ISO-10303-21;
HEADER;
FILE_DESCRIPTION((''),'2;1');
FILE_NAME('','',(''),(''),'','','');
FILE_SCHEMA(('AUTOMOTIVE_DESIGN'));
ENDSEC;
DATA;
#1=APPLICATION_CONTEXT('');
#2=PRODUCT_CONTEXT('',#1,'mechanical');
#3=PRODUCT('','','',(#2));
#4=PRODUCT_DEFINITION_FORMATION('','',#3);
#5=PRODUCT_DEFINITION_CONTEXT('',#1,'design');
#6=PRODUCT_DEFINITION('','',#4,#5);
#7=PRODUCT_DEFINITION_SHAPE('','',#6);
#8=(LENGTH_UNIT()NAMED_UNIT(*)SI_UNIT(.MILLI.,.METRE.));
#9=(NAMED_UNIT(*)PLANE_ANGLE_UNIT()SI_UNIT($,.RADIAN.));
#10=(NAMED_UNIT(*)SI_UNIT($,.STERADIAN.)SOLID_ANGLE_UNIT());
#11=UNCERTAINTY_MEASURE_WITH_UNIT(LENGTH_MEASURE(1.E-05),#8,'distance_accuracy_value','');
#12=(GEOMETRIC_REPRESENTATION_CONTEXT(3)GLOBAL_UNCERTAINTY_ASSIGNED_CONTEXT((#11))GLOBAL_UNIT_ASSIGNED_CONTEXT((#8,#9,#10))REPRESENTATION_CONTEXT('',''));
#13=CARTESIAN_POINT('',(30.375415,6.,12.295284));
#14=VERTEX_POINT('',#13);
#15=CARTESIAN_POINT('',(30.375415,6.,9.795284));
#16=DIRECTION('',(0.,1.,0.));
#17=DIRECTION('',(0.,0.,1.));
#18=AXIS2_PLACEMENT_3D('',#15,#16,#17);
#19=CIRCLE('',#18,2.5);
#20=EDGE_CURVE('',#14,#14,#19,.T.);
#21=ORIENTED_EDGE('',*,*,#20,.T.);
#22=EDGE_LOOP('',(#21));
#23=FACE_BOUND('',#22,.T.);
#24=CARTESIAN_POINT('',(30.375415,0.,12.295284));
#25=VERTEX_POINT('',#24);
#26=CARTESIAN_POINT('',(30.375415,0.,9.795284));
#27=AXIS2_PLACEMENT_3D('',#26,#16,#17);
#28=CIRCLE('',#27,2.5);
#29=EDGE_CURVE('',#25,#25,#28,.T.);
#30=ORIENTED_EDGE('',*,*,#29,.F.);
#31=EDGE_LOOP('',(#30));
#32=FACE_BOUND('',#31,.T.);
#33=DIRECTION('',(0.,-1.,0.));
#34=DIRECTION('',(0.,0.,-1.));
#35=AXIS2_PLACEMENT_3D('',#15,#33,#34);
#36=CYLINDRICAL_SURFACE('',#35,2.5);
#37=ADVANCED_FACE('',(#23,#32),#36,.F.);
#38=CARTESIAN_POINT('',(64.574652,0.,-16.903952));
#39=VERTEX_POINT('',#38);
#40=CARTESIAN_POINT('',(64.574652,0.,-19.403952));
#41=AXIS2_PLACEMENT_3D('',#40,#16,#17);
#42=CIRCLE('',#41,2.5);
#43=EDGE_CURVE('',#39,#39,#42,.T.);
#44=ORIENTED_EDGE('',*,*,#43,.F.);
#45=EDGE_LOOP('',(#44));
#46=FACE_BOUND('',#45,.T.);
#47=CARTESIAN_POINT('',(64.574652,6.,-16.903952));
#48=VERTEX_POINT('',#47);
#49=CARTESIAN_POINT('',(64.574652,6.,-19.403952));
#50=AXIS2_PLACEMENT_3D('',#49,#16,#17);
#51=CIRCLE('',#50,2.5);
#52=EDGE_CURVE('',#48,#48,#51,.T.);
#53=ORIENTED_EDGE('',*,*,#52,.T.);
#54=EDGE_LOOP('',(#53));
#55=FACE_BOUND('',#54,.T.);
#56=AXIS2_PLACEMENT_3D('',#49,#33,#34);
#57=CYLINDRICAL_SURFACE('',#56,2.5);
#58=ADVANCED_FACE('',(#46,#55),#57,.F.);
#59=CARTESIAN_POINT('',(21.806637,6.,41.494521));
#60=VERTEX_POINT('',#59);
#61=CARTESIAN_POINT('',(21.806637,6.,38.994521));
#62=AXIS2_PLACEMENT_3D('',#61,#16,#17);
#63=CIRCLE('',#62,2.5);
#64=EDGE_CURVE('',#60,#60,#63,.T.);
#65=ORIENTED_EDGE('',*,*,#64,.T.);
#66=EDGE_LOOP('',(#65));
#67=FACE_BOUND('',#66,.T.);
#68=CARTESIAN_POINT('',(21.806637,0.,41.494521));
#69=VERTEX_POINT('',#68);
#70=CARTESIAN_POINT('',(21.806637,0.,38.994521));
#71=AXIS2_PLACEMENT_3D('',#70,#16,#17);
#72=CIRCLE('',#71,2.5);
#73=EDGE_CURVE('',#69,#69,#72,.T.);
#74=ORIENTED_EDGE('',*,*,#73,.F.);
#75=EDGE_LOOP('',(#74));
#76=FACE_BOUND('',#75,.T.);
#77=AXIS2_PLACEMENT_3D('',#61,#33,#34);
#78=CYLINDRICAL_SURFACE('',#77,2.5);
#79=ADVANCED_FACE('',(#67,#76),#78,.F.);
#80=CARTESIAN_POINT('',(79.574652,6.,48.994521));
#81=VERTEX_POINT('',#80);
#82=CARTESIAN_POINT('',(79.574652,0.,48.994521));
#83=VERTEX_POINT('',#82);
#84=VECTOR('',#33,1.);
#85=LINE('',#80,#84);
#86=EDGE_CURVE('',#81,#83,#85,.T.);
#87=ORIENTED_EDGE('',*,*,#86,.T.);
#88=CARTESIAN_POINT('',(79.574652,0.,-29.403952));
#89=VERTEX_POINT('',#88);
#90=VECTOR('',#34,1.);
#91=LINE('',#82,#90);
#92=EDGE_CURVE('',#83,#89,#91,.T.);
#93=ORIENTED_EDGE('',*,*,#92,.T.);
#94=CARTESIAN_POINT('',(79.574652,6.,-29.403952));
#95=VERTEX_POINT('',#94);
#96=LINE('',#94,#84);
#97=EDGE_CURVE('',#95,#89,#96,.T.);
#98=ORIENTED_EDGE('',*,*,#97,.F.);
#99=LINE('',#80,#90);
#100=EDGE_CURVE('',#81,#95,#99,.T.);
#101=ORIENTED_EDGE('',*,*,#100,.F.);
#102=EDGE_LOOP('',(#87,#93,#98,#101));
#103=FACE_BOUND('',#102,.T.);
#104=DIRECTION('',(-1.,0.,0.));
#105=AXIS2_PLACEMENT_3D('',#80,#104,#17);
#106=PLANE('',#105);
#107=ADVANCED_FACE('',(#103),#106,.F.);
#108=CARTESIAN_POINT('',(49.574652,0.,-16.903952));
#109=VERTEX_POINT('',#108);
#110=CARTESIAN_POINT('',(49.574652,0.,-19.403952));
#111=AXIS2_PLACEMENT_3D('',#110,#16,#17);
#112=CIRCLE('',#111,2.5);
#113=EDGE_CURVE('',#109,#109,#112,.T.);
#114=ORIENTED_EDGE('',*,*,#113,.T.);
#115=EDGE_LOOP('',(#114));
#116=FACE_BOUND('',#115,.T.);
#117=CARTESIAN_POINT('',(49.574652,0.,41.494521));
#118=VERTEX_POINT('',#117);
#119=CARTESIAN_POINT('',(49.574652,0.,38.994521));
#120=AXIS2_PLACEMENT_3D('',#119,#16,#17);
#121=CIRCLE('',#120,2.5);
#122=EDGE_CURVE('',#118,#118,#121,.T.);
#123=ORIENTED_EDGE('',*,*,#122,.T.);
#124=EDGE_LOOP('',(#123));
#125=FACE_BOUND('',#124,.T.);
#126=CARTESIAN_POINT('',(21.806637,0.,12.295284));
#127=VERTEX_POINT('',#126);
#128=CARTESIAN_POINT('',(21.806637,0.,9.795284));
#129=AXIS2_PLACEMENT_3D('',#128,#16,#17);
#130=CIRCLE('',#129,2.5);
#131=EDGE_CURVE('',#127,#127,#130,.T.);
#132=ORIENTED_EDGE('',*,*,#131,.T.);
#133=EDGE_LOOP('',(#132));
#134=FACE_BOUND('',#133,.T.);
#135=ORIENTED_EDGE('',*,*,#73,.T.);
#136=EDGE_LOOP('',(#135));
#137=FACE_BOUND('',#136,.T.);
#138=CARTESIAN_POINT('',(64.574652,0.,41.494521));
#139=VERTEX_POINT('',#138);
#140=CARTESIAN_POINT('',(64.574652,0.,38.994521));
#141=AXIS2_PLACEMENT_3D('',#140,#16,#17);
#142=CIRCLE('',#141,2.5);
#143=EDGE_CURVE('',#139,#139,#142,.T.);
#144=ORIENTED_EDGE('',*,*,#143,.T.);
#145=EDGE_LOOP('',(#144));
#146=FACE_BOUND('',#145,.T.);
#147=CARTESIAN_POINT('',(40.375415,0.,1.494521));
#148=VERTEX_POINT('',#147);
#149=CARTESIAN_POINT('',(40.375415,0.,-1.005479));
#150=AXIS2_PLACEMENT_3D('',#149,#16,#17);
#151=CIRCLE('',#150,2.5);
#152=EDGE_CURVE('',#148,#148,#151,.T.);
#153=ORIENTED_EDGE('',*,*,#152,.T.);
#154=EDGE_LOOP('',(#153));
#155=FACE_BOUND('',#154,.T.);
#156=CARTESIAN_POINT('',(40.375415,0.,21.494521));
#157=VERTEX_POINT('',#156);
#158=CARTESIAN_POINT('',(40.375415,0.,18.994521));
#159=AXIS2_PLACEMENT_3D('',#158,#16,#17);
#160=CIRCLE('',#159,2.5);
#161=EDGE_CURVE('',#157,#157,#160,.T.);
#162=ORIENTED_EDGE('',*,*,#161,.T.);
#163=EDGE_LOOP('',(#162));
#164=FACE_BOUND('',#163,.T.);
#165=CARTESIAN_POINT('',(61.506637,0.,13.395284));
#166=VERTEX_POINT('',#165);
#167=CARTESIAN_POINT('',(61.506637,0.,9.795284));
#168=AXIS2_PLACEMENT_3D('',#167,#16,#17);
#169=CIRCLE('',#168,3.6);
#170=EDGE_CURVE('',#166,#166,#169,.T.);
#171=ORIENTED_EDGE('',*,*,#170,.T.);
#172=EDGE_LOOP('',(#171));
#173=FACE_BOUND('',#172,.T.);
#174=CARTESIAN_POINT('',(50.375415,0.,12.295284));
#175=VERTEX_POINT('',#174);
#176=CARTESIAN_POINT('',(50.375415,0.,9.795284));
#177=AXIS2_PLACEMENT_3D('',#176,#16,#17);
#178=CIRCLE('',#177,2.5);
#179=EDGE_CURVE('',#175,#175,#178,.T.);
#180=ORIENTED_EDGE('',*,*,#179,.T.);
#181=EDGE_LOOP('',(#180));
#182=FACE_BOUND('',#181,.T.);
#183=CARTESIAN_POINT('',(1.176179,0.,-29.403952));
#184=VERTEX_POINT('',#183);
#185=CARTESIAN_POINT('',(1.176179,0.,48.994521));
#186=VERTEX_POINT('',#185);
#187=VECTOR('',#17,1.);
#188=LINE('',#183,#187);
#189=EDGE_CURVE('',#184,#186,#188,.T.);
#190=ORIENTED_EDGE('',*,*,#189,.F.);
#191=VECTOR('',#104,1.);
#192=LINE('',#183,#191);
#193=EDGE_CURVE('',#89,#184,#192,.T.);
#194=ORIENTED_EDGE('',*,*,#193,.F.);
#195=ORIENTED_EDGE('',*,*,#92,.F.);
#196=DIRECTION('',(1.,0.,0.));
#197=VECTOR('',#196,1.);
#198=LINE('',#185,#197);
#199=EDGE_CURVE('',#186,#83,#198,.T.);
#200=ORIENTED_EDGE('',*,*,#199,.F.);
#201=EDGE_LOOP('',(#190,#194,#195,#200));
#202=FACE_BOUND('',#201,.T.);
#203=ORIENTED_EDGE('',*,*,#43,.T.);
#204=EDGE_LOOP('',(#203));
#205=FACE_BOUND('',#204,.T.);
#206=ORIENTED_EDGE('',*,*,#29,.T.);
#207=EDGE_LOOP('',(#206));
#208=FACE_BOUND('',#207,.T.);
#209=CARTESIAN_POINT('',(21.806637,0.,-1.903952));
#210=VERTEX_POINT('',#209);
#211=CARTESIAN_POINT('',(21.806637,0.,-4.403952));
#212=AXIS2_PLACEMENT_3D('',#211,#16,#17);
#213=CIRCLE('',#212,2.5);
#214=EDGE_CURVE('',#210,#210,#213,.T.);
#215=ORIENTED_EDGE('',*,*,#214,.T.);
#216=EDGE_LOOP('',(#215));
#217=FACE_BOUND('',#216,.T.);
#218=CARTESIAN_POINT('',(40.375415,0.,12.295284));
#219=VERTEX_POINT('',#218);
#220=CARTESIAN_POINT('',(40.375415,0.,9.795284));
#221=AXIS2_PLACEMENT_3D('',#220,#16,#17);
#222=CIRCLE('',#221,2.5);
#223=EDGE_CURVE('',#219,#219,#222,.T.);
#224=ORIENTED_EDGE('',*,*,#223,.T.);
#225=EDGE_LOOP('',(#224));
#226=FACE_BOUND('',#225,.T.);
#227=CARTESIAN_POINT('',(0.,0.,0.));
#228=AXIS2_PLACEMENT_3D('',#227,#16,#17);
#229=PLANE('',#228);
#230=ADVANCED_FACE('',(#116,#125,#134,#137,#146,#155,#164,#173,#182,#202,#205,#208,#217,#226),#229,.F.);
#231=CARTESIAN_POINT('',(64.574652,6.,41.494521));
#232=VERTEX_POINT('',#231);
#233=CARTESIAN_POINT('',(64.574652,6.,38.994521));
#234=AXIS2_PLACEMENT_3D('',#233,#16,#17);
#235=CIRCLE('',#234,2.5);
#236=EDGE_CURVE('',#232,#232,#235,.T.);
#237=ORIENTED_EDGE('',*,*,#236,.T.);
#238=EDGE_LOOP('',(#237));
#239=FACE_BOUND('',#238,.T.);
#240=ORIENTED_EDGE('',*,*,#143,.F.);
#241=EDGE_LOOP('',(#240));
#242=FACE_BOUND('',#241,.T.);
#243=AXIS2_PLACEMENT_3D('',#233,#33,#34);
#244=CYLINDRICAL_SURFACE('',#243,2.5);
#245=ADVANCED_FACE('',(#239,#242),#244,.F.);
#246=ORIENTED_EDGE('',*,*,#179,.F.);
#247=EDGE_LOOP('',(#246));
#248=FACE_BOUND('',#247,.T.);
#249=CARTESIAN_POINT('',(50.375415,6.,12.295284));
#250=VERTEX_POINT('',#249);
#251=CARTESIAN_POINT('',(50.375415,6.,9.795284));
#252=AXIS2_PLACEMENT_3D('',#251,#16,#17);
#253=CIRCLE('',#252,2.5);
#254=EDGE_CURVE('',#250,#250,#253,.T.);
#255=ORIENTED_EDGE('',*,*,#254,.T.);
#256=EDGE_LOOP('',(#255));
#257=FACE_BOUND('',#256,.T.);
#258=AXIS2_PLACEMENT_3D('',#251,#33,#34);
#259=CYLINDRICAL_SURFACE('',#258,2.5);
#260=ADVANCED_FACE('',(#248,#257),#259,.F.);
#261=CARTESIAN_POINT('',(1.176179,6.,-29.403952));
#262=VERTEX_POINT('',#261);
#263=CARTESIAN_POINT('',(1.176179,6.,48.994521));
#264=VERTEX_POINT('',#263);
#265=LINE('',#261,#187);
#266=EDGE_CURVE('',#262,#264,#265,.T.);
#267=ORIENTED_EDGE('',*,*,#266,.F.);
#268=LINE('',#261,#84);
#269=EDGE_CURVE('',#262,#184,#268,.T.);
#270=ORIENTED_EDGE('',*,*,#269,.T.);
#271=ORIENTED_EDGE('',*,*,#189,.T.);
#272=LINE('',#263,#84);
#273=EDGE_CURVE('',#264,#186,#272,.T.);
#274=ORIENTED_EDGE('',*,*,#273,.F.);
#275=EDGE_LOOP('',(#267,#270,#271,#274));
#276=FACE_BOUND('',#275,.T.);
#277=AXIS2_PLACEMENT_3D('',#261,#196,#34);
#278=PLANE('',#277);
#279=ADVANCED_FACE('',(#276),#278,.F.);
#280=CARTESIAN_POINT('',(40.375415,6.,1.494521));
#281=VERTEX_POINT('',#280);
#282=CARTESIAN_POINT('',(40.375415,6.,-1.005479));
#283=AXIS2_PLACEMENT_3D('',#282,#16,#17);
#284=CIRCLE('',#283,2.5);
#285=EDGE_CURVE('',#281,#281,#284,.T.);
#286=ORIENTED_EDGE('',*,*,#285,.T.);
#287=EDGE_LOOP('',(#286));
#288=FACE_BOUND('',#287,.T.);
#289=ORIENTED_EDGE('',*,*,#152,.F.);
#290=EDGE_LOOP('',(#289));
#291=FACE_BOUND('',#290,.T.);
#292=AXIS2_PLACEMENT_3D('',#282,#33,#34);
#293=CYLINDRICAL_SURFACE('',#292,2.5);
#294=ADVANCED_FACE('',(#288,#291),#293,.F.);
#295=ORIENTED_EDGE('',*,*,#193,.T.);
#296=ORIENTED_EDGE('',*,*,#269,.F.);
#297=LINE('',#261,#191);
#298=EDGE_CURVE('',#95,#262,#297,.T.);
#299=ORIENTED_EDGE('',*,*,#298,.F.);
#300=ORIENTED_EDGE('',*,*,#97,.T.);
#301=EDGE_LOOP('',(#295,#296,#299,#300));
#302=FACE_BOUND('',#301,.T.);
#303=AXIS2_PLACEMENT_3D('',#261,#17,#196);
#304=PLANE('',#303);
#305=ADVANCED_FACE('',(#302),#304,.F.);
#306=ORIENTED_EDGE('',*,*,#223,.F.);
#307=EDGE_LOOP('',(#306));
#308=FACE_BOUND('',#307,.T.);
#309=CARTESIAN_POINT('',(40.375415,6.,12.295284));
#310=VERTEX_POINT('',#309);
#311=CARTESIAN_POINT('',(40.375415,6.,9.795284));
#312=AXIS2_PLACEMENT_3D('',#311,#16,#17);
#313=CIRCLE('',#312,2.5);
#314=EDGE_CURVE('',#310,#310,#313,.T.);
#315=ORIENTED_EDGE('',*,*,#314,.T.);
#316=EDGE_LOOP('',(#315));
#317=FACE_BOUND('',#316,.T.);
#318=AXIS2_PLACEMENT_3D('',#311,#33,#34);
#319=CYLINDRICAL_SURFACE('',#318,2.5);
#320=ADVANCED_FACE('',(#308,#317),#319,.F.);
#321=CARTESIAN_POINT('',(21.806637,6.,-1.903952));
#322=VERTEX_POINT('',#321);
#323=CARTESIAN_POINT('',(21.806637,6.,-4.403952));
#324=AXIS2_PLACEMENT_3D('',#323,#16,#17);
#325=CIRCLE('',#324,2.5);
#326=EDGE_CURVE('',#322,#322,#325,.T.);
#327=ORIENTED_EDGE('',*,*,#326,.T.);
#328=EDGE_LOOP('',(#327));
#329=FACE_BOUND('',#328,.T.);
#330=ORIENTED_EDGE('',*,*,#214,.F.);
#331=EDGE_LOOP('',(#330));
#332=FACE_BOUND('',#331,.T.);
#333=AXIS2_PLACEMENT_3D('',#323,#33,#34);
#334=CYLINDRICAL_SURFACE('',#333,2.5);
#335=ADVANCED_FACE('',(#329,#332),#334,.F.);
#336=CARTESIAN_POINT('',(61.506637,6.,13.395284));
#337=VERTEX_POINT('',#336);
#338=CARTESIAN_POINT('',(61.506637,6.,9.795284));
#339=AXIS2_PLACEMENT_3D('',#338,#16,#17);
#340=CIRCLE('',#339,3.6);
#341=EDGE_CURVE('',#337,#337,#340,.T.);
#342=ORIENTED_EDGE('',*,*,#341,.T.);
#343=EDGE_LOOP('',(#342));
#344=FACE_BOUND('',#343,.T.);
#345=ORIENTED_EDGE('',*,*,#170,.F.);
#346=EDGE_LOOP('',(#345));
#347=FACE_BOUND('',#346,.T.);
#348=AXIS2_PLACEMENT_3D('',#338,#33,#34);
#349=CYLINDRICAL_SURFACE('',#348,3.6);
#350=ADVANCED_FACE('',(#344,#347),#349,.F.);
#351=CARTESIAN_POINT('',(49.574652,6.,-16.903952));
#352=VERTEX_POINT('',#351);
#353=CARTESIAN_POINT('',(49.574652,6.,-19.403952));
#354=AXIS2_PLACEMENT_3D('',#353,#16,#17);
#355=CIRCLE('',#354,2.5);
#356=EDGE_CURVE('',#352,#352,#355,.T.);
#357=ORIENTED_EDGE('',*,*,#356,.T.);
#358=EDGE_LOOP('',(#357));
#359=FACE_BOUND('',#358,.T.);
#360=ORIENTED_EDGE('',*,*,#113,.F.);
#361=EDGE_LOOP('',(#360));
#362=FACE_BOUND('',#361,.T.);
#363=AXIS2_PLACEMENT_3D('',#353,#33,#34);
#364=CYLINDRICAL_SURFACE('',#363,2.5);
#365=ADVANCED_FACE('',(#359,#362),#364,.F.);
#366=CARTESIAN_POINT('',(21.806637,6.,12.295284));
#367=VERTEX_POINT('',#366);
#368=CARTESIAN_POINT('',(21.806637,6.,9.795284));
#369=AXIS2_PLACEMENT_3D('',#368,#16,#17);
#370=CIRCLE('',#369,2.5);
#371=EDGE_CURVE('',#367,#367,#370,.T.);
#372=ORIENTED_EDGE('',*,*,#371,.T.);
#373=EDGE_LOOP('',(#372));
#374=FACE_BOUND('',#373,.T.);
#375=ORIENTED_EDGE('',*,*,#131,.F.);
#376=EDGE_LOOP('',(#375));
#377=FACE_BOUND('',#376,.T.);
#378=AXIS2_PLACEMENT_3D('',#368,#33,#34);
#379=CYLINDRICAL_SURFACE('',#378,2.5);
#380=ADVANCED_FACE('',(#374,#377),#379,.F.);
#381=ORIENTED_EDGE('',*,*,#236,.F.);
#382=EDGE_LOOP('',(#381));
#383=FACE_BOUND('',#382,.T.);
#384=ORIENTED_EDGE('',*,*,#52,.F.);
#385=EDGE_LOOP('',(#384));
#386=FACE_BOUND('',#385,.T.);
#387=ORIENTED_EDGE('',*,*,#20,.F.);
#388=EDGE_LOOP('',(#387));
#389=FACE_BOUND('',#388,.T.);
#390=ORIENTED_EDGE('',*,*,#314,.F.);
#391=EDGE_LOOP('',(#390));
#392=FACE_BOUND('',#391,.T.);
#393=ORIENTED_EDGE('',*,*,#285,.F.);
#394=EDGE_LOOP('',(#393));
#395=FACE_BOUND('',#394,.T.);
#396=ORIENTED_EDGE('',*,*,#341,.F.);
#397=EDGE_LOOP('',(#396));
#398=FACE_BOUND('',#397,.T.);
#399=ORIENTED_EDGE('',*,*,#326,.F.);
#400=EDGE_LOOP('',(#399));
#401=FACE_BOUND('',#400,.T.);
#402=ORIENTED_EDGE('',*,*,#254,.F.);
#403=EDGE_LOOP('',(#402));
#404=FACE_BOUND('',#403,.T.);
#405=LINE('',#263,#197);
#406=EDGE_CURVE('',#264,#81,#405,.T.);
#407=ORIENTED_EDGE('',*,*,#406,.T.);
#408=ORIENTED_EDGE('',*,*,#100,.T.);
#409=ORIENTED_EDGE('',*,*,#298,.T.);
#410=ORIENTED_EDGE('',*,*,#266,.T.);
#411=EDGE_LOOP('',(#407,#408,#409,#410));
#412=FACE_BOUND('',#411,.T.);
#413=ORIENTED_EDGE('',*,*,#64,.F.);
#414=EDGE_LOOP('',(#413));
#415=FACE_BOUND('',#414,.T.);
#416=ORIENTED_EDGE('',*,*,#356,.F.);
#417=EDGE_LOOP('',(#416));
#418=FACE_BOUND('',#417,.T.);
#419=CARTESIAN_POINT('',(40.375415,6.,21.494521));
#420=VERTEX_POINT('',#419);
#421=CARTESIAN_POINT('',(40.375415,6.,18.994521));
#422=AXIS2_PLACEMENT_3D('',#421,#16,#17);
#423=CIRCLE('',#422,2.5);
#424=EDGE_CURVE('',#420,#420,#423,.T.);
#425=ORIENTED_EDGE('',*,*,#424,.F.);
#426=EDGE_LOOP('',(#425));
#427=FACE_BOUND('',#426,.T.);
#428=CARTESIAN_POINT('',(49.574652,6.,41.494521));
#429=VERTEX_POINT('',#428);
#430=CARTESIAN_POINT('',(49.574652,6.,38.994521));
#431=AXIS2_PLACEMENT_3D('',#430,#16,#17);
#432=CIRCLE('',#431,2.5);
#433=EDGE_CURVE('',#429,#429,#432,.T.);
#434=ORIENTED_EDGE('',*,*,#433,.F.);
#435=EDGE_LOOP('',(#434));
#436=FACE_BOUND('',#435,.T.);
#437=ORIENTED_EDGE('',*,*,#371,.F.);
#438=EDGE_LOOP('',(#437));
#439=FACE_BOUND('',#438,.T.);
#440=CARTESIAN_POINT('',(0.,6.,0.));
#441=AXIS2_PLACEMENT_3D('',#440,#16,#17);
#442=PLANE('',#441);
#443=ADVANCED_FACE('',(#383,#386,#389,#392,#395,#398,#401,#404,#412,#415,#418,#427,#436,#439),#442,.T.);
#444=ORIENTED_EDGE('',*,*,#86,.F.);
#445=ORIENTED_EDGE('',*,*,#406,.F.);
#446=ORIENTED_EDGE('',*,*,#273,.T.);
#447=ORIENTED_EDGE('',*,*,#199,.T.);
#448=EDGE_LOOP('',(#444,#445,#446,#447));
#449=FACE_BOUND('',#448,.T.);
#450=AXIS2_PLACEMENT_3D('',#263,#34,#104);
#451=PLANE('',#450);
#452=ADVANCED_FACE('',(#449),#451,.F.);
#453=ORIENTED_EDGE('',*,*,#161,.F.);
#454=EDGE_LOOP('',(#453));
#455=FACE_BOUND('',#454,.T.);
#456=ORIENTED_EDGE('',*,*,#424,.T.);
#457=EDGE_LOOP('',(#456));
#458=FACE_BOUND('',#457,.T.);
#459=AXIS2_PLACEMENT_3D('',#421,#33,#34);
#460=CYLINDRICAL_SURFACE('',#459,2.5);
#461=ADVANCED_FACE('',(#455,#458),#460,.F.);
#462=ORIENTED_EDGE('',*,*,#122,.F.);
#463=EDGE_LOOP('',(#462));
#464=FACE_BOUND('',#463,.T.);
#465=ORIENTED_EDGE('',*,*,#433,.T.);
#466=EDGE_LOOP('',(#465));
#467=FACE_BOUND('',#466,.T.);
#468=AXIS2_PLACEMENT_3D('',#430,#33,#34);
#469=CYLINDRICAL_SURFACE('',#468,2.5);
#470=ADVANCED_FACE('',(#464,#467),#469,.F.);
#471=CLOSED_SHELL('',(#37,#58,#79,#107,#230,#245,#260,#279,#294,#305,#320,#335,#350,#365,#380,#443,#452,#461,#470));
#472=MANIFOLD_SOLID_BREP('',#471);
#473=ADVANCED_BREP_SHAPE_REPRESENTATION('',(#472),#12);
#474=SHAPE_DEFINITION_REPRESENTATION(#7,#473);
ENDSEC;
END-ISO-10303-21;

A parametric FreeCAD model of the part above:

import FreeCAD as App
import Part
import Sketcher
from FreeCAD import Vector


def add_polygon(sketch, points):
    """Adds a closed chain of lines whose ends are joined by coincident constraints."""
    first, n = sketch.GeometryCount, len(points)
    for a, b in zip(points, points[1:] + points[:1]):
        sketch.addGeometry(Part.LineSegment(App.Vector(*a, 0), App.Vector(*b, 0)), False)
    for i in range(n):
        sketch.addConstraint(Sketcher.Constraint("Coincident", first + i, 2, first + (i + 1) % n, 1))

doc = App.newDocument("Part")
body = doc.addObject("PartDesign::Body", "Body")

# Sketch on XZ plane
sketch1 = doc.addObject("Sketcher::SketchObject", "Sketch")
body.addObject(sketch1)
sketch1.AttachmentSupport = (doc.XZ_Plane, [""])
sketch1.MapMode = "FlatFace"
add_polygon(sketch1, [(1.176179, -29.403952), (1.176179, 48.994521), (79.574652, 48.994521), (79.574652, -29.403952)])  # lines 0-3
sketch1.addGeometry(Part.Circle(Vector(21.806637, 38.994521, 0), Vector(0, 0, 1), 2.5), False)  # 4
sketch1.addGeometry(Part.Circle(Vector(40.375415, 18.994521, 0), Vector(0, 0, 1), 2.5), False)  # 5
sketch1.addGeometry(Part.Circle(Vector(49.574652, 38.994521, 0), Vector(0, 0, 1), 2.5), False)  # 6
sketch1.addGeometry(Part.Circle(Vector(64.574652, 38.994521, 0), Vector(0, 0, 1), 2.5), False)  # 7
sketch1.addGeometry(Part.Circle(Vector(21.806637, 9.795284, 0), Vector(0, 0, 1), 2.5), False)  # 8
sketch1.addGeometry(Part.Circle(Vector(30.375415, 9.795284, 0), Vector(0, 0, 1), 2.5), False)  # 9
sketch1.addGeometry(Part.Circle(Vector(21.806637, -4.403952, 0), Vector(0, 0, 1), 2.5), False)  # 10
sketch1.addGeometry(Part.Circle(Vector(40.375415, 9.795284, 0), Vector(0, 0, 1), 2.5), False)  # 11
sketch1.addGeometry(Part.Circle(Vector(40.375415, -1.005479, 0), Vector(0, 0, 1), 2.5), False)  # 12
sketch1.addGeometry(Part.Circle(Vector(50.375415, 9.795284, 0), Vector(0, 0, 1), 2.5), False)  # 13
sketch1.addGeometry(Part.Circle(Vector(61.506637, 9.795284, 0), Vector(0, 0, 1), 3.6), False)  # 14
sketch1.addGeometry(Part.Circle(Vector(49.574652, -19.403952, 0), Vector(0, 0, 1), 2.5), False)  # 15
sketch1.addGeometry(Part.Circle(Vector(64.574652, -19.403952, 0), Vector(0, 0, 1), 2.5), False)  # 16
sketch1.addConstraint([
    Sketcher.Constraint("Vertical", 0),
    Sketcher.Constraint("Horizontal", 1),
    Sketcher.Constraint("Vertical", 2),
    Sketcher.Constraint("Horizontal", 3),
    Sketcher.Constraint("Equal", 4, 5),
    Sketcher.Constraint("Equal", 5, 6),
    Sketcher.Constraint("Equal", 6, 7),
    Sketcher.Constraint("Equal", 7, 8),
    Sketcher.Constraint("Equal", 8, 9),
    Sketcher.Constraint("Equal", 9, 10),
    Sketcher.Constraint("Equal", 10, 11),
    Sketcher.Constraint("Equal", 11, 12),
    Sketcher.Constraint("Equal", 12, 13),
    Sketcher.Constraint("Equal", 13, 15),
    Sketcher.Constraint("Equal", 15, 16),
    Sketcher.Constraint("Horizontal", 4, 3, 6, 3),
    Sketcher.Constraint("Horizontal", 6, 3, 7, 3),
    Sketcher.Constraint("Horizontal", 8, 3, 9, 3),
    Sketcher.Constraint("Horizontal", 9, 3, 11, 3),
    Sketcher.Constraint("Horizontal", 11, 3, 13, 3),
    Sketcher.Constraint("Horizontal", 13, 3, 14, 3),
    Sketcher.Constraint("Horizontal", 15, 3, 16, 3),
    Sketcher.Constraint("Vertical", 4, 3, 8, 3),
    Sketcher.Constraint("Vertical", 8, 3, 10, 3),
    Sketcher.Constraint("Vertical", 5, 3, 11, 3),
    Sketcher.Constraint("Vertical", 11, 3, 12, 3),
    Sketcher.Constraint("Vertical", 6, 3, 15, 3),
    Sketcher.Constraint("Vertical", 7, 3, 16, 3),
    Sketcher.Constraint("Equal", 3, 0),
    Sketcher.Constraint("Diameter", 4, 5.0),
    Sketcher.Constraint("Diameter", 14, 7.2),
    Sketcher.Constraint("DistanceY", 5, 3, 4, 3, 20.0),
    Sketcher.Constraint("DistanceX", 6, 3, 7, 3, 15.0),
    Sketcher.Constraint("DistanceX", 9, 3, 5, 3, 10.0),
    Sketcher.Constraint("DistanceY", 12, 3, 5, 3, 20.0),
    Sketcher.Constraint("DistanceX", 11, 3, 13, 3, 10.0),
    Sketcher.Constraint("DistanceY", 15, 3, 10, 3, 15.0),
    Sketcher.Constraint("DistanceY", 4, 3, 0, 2, 10.0),
    Sketcher.Constraint("DistanceX", 7, 3, 1, 2, 15.0),
    Sketcher.Constraint("DistanceY", 2, 2, 16, 3, 10.0),
    Sketcher.Constraint("DistanceX", 1, 1, 1, 2, 78.398473),
    Sketcher.Constraint("DistanceY", -1, 1, 4, 3, 38.994521),
    Sketcher.Constraint("DistanceX", -1, 1, 6, 3, 49.574652),
    Sketcher.Constraint("DistanceX", 4, 3, 5, 3, 18.568778),
    Sketcher.Constraint("DistanceX", 13, 3, 14, 3, 11.131222),
    Sketcher.Constraint("DistanceX", 0, 2, 4, 3, 20.630458),
    Sketcher.Constraint("DistanceY", -1, 1, 8, 3, 9.795284),
])
pad1 = doc.addObject("PartDesign::Pad", "Pad")
body.addObject(pad1)
pad1.Profile = sketch1
pad1.Length = 6
pad1.Reversed = True

doc.recompute()
